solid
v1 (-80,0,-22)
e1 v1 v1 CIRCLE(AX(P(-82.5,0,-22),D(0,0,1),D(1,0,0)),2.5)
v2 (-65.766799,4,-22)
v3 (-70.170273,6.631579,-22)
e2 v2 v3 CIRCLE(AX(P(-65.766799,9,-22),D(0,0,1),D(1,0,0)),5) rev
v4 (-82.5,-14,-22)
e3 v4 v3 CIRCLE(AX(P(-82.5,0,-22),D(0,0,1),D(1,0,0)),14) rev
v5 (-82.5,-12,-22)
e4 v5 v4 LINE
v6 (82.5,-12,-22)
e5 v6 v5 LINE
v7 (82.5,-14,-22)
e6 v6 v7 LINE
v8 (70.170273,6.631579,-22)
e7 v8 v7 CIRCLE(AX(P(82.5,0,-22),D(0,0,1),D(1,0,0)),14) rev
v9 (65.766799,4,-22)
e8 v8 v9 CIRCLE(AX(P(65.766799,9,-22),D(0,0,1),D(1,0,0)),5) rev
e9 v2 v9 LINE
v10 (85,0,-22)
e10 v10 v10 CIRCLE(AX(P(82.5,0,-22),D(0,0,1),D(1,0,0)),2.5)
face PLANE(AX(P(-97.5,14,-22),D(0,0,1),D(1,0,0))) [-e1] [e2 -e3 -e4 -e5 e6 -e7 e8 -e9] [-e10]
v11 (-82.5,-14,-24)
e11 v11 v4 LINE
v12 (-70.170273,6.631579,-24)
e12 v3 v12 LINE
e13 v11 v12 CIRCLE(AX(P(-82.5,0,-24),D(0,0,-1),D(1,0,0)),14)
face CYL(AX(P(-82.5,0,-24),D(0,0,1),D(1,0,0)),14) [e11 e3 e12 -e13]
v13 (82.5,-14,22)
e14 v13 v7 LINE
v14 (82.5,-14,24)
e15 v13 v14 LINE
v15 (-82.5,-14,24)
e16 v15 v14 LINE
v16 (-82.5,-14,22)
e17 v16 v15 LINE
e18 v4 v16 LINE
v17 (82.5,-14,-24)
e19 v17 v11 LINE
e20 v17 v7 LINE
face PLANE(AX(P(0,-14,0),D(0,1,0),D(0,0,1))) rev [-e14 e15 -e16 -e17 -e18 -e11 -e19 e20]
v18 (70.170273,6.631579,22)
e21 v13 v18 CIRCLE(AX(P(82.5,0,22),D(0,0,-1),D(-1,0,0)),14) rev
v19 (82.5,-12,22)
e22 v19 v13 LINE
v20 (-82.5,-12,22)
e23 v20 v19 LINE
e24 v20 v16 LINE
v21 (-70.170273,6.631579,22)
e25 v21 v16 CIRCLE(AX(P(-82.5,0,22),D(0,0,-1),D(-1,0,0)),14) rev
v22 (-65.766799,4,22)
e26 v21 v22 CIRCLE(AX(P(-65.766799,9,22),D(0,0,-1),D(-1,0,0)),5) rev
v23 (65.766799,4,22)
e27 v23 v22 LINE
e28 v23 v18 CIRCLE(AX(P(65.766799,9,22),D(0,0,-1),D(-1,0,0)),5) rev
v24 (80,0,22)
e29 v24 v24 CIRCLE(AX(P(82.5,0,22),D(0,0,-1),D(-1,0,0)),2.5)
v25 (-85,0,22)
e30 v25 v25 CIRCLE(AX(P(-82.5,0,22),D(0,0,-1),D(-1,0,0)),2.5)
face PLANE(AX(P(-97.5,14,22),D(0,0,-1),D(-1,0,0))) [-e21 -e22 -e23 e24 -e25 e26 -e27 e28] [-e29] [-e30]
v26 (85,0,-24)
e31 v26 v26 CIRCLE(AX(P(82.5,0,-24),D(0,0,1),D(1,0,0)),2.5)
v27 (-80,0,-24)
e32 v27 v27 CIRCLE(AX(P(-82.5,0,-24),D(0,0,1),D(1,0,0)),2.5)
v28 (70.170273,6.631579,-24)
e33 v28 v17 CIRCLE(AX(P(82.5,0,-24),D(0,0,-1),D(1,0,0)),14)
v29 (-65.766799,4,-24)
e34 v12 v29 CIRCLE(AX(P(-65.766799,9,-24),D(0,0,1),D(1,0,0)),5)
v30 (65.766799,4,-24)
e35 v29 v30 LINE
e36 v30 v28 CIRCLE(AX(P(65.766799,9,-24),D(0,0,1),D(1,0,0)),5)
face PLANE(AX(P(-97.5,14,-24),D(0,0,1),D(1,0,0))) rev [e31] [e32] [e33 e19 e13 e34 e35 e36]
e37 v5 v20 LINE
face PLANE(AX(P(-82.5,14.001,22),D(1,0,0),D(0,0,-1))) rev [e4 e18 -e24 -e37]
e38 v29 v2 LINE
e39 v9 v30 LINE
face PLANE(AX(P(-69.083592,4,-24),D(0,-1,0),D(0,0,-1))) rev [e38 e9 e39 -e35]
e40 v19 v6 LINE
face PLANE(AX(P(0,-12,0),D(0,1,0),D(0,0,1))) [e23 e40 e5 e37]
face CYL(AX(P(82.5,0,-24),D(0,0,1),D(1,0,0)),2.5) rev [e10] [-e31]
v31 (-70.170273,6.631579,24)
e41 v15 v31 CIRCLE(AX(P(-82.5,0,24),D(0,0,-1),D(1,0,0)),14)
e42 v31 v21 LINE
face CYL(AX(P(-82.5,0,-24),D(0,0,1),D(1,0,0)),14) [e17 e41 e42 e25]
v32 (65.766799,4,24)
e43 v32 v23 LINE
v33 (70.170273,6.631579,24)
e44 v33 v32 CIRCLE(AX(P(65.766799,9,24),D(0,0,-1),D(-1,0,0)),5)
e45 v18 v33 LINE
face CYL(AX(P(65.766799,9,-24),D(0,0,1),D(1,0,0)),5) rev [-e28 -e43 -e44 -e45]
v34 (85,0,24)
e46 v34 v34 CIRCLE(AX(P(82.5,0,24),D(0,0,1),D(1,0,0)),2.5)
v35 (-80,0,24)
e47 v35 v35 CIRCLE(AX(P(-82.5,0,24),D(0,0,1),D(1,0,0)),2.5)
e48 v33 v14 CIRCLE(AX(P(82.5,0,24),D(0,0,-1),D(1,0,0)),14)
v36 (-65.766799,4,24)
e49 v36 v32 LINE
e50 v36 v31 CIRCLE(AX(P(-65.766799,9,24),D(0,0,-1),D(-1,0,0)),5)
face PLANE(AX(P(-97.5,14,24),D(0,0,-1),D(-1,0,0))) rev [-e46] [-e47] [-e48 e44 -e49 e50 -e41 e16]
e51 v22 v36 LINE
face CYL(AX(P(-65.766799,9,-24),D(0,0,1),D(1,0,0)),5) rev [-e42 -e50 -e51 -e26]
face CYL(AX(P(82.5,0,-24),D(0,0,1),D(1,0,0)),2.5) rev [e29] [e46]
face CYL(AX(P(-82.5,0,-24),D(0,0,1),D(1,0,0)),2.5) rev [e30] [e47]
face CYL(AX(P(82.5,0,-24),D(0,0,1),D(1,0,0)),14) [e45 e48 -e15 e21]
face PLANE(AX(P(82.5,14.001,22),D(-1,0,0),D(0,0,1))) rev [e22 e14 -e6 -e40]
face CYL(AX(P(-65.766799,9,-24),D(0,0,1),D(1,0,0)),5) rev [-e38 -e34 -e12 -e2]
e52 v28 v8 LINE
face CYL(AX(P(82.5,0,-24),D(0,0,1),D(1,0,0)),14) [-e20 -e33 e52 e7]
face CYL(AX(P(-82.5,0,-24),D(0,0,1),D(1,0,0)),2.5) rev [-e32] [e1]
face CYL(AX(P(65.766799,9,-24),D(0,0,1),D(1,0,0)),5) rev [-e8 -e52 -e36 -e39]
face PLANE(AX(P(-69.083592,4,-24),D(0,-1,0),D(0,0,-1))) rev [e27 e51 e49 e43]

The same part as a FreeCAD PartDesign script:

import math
import FreeCAD as App
import Part
import Sketcher

V = App.Vector
Q = App.Units.Quantity


def edges_at(feature, points):
    """Names of the edges that pass closest to the given points."""
    edges = feature.Shape.Edges
    near = lambda p: min(range(len(edges)), key=lambda i: edges[i].distToShape(Part.Vertex(*p))[0])
    return sorted({f"Edge{near(p) + 1}" for p in points})


def faces_at(feature, points):
    """Names of the faces that lie closest to the given points."""
    faces = feature.Shape.Faces
    near = lambda p: min(range(len(faces)), key=lambda i: faces[i].distToShape(Part.Vertex(*p))[0])
    return sorted({f"Face{near(p) + 1}" for p in points})

doc = App.newDocument("Part")
body = doc.addObject("PartDesign::Body", "Body")

sketch1 = doc.addObject("Sketcher::SketchObject", "Sketch")
body.addObject(sketch1)
sketch1.AttachmentSupport = (doc.XZ_Plane, [""])
sketch1.MapMode = "FlatFace"
sketch1.addGeometry([
    Part.LineSegment(V(-97.5, -24, 0), V(-97.5, 24, 0)),
    Part.LineSegment(V(-97.5, 24, 0), V(97.5, 24, 0)),
    Part.LineSegment(V(97.5, 24, 0), V(97.5, -24, 0)),
    Part.LineSegment(V(97.5, -24, 0), V(-97.5, -24, 0)),
], False)
sketch1.addConstraint([
    Sketcher.Constraint("Coincident", 0, 2, 1, 1),
    Sketcher.Constraint("Coincident", 1, 2, 2, 1),
    Sketcher.Constraint("Coincident", 2, 2, 3, 1),
    Sketcher.Constraint("Coincident", 3, 2, 0, 1),
    Sketcher.Constraint("Vertical", 0),
    Sketcher.Constraint("Horizontal", 1),
    Sketcher.Constraint("Vertical", 2),
    Sketcher.Constraint("Horizontal", 3),
    Sketcher.Constraint("Symmetric", 0, 2, 2, 2, -1, 1),
    Sketcher.Constraint("DistanceX", 1, 1, 1, 2, Q("195 mm")),
    Sketcher.Constraint("DistanceY", 0, 1, 0, 2, Q("48 mm")),
])
pad1 = doc.addObject("PartDesign::Pad", "Pad")
body.addObject(pad1)
pad1.Profile = sketch1
pad1.Length = 28
pad1.Midplane = True
doc.recompute()

thickness = doc.addObject("PartDesign::Thickness", "Thickness")
body.addObject(thickness)
thickness.Base = (pad1, faces_at(pad1, [(0, 14, 0)]))
thickness.Value = 2
thickness.Reversed = True
thickness.Join = "Intersection"

sketch2 = doc.addObject("Sketcher::SketchObject", "Sketch001")
body.addObject(sketch2)
sketch2.AttachmentSupport = (doc.XY_Plane, [""])
sketch2.MapMode = "FlatFace"
sketch2.AttachmentOffset = App.Placement(V(0, 0, 24), App.Rotation())
sketch2.addGeometry([
    Part.Circle(V(-82.5, 0, 0), V(0, 0, 1), 2.5),
    Part.Circle(V(82.5, 0, 0), V(0, 0, 1), 2.5),
], False)
sketch2.addConstraint([
    Sketcher.Constraint("Equal", 0, 1),
    Sketcher.Constraint("Symmetric", 0, 3, 1, 3, -1, 1),
    Sketcher.Constraint("PointOnObject", 0, 3, -1),
    Sketcher.Constraint("Diameter", 0, Q("5 mm")),
    Sketcher.Constraint("DistanceX", 0, 3, 1, 3, Q("165 mm")),
])
pocket1 = doc.addObject("PartDesign::Pocket", "Pocket")
body.addObject(pocket1)
pocket1.Profile = sketch2
pocket1.Type = "ThroughAll"

sketch3 = doc.addObject("Sketcher::SketchObject", "Sketch002")
body.addObject(sketch3)
sketch3.AttachmentSupport = (doc.YZ_Plane, [""])
sketch3.MapMode = "FlatFace"
sketch3.AttachmentOffset = App.Placement(V(0, 0, -95.5), App.Rotation())
sketch3.addGeometry([
    Part.LineSegment(V(14, 22, 0), V(-12, 22, 0)),
    Part.LineSegment(V(-12, 22, 0), V(-12, -22, 0)),
    Part.LineSegment(V(-12, -22, 0), V(14, -22, 0)),
    Part.LineSegment(V(14, -22, 0), V(14, 22, 0)),
], False)
sketch3.addConstraint([
    Sketcher.Constraint("Coincident", 0, 2, 1, 1),
    Sketcher.Constraint("Coincident", 1, 2, 2, 1),
    Sketcher.Constraint("Coincident", 2, 2, 3, 1),
    Sketcher.Constraint("Coincident", 3, 2, 0, 1),
    Sketcher.Constraint("Horizontal", 0),
    Sketcher.Constraint("Vertical", 1),
    Sketcher.Constraint("Horizontal", 2),
    Sketcher.Constraint("Vertical", 3),
    Sketcher.Constraint("DistanceX", 0, 2, 0, 1, Q("26 mm")),
    Sketcher.Constraint("DistanceY", 1, 2, 1, 1, Q("44 mm")),
    Sketcher.Constraint("DistanceX", 0, 2, -1, 1, Q("12 mm")),
    Sketcher.Constraint("DistanceY", -1, 1, 0, 2, Q("22 mm")),
])
pocket2 = doc.addObject("PartDesign::Pocket", "Pocket001")
body.addObject(pocket2)
pocket2.Profile = sketch3
pocket2.Type = "UpToFirst"

sketch4 = doc.addObject("Sketcher::SketchObject", "Sketch003")
body.addObject(sketch4)
sketch4.AttachmentSupport = (doc.YZ_Plane, [""])
sketch4.MapMode = "FlatFace"
sketch4.AttachmentOffset = App.Placement(V(0, 0, -95.5), App.Rotation())
sketch4.addGeometry([
    Part.LineSegment(V(14, 22, 0), V(-12, 22, 0)),
    Part.LineSegment(V(-12, 22, 0), V(-12, -22, 0)),
    Part.LineSegment(V(-12, -22, 0), V(14, -22, 0)),
    Part.LineSegment(V(14, -22, 0), V(14, 22, 0)),
], False)
sketch4.addConstraint([
    Sketcher.Constraint("Coincident", 0, 2, 1, 1),
    Sketcher.Constraint("Coincident", 1, 2, 2, 1),
    Sketcher.Constraint("Coincident", 2, 2, 3, 1),
    Sketcher.Constraint("Coincident", 3, 2, 0, 1),
    Sketcher.Constraint("Horizontal", 0),
    Sketcher.Constraint("Vertical", 1),
    Sketcher.Constraint("Horizontal", 2),
    Sketcher.Constraint("Vertical", 3),
    Sketcher.Constraint("DistanceX", 0, 2, 0, 1, Q("26 mm")),
    Sketcher.Constraint("DistanceY", 1, 2, 1, 1, Q("44 mm")),
    Sketcher.Constraint("DistanceX", 0, 2, -1, 1, Q("12 mm")),
    Sketcher.Constraint("DistanceY", -1, 1, 0, 2, Q("22 mm")),
])
pocket3 = doc.addObject("PartDesign::Pocket", "Pocket002")
body.addObject(pocket3)
pocket3.Profile = sketch4
pocket3.Length = 193
pocket3.Reversed = True

sketch5 = doc.addObject("Sketcher::SketchObject", "Sketch004")
body.addObject(sketch5)
sketch5.AttachmentSupport = (doc.XY_Plane, [""])
sketch5.MapMode = "FlatFace"
sketch5.addGeometry([
    Part.LineSegment(V(-69.083592, 4, 0), V(69.083592, 4, 0)),
    Part.ArcOfCircle(Part.Circle(V(82.5, 0, 0), V(0, 0, 1), 14), math.radians(-90), math.radians(163.39845)),
    Part.LineSegment(V(82.5, -14, 0), V(97.5, -14, 0)),
    Part.LineSegment(V(97.5, -14, 0), V(97.5, 24, 0)),
    Part.LineSegment(V(97.5, 24, 0), V(-97.5, 24, 0)),
    Part.LineSegment(V(-97.5, 24, 0), V(-97.5, -14, 0)),
    Part.LineSegment(V(-97.5, -14, 0), V(-82.5, -14, 0)),
    Part.ArcOfCircle(Part.Circle(V(-82.5, 0, 0), V(0, 0, 1), 14), math.radians(16.60155), math.radians(270)),
], False)
sketch5.addConstraint([
    Sketcher.Constraint("Coincident", 0, 2, 1, 2),
    Sketcher.Constraint("Tangent", 1, 1, 2, 1),
    Sketcher.Constraint("Coincident", 2, 2, 3, 1),
    Sketcher.Constraint("Coincident", 3, 2, 4, 1),
    Sketcher.Constraint("Coincident", 4, 2, 5, 1),
    Sketcher.Constraint("Coincident", 5, 2, 6, 1),
    Sketcher.Constraint("Tangent", 6, 2, 7, 2),
    Sketcher.Constraint("Coincident", 7, 1, 0, 1),
    Sketcher.Constraint("Horizontal", 0),
    Sketcher.Constraint("Horizontal", 2),
    Sketcher.Constraint("Vertical", 3),
    Sketcher.Constraint("Horizontal", 4),
    Sketcher.Constraint("Vertical", 5),
    Sketcher.Constraint("Horizontal", 6),
    Sketcher.Constraint("Equal", 1, 7),
    Sketcher.Constraint("Symmetric", 1, 3, 7, 3, -1, 1),
    Sketcher.Constraint("Symmetric", 2, 2, 5, 2, -2),
    Sketcher.Constraint("Radius", 1, Q("14 mm")),
    Sketcher.Constraint("DistanceX", 2, 1, 2, 2, Q("15 mm")),
    Sketcher.Constraint("DistanceX", 4, 2, 4, 1, Q("195 mm")),
    Sketcher.Constraint("DistanceY", 3, 1, 3, 2, Q("38 mm")),
    Sketcher.Constraint("DistanceY", -1, 1, 0, 2, Q("4 mm")),
])
pocket4 = doc.addObject("PartDesign::Pocket", "Pocket003")
body.addObject(pocket4)
pocket4.Profile = sketch5
pocket4.Type = "ThroughAll"
pocket4.Midplane = True

sketch6 = doc.addObject("Sketcher::SketchObject", "Sketch005")
body.addObject(sketch6)
sketch6.AttachmentSupport = (doc.XZ_Plane, [""])
sketch6.MapMode = "FlatFace"
sketch6.AttachmentOffset = App.Placement(V(0, 0, 14), App.Rotation())
sketch6.addGeometry([
    Part.LineSegment(V(82.5, 22, 0), V(82.5, -22, 0)),
    Part.LineSegment(V(82.5, -22, 0), V(89.711103, -22, 0)),
    Part.LineSegment(V(89.711103, -22, 0), V(89.711103, 22, 0)),
    Part.LineSegment(V(89.711103, 22, 0), V(82.5, 22, 0)),
], False)
sketch6.addConstraint([
    Sketcher.Constraint("Coincident", 0, 2, 1, 1),
    Sketcher.Constraint("Coincident", 1, 2, 2, 1),
    Sketcher.Constraint("Coincident", 2, 2, 3, 1),
    Sketcher.Constraint("Coincident", 3, 2, 0, 1),
    Sketcher.Constraint("Vertical", 0),
    Sketcher.Constraint("Horizontal", 1),
    Sketcher.Constraint("Vertical", 2),
    Sketcher.Constraint("Horizontal", 3),
    Sketcher.Constraint("DistanceY", 0, 2, 0, 1, Q("44 mm")),
    Sketcher.Constraint("DistanceY", 0, 2, -1, 1, Q("22 mm")),
    Sketcher.Constraint("DistanceX", -1, 1, 0, 2, Q("82.5 mm")),
    Sketcher.Constraint("DistanceX", 1, 1, 1, 2, Q("7.211103 mm")),
])
pocket5 = doc.addObject("PartDesign::Pocket", "Pocket004")
body.addObject(pocket5)
pocket5.Profile = sketch6
pocket5.Length = 2

sketch7 = doc.addObject("Sketcher::SketchObject", "Sketch006")
body.addObject(sketch7)
sketch7.AttachmentSupport = (doc.XZ_Plane, [""])
sketch7.MapMode = "FlatFace"
sketch7.AttachmentOffset = App.Placement(V(0, 0, 14), App.Rotation())
sketch7.addGeometry([
    Part.LineSegment(V(-89.711103, 22, 0), V(-89.711103, -22, 0)),
    Part.LineSegment(V(-89.711103, -22, 0), V(-82.5, -22, 0)),
    Part.LineSegment(V(-82.5, -22, 0), V(-82.5, 22, 0)),
    Part.LineSegment(V(-82.5, 22, 0), V(-89.711103, 22, 0)),
], False)
sketch7.addConstraint([
    Sketcher.Constraint("Coincident", 0, 2, 1, 1),
    Sketcher.Constraint("Coincident", 1, 2, 2, 1),
    Sketcher.Constraint("Coincident", 2, 2, 3, 1),
    Sketcher.Constraint("Coincident", 3, 2, 0, 1),
    Sketcher.Constraint("Vertical", 0),
    Sketcher.Constraint("Horizontal", 1),
    Sketcher.Constraint("Vertical", 2),
    Sketcher.Constraint("Horizontal", 3),
    Sketcher.Constraint("DistanceY", 0, 2, 0, 1, Q("44 mm")),
    Sketcher.Constraint("DistanceY", 0, 2, -1, 1, Q("22 mm")),
    Sketcher.Constraint("DistanceX", 1, 2, -1, 1, Q("82.5 mm")),
    Sketcher.Constraint("DistanceX", 1, 1, 1, 2, Q("7.211103 mm")),
])
pocket6 = doc.addObject("PartDesign::Pocket", "Pocket005")
body.addObject(pocket6)
pocket6.Profile = sketch7
pocket6.Length = 2
doc.recompute()

fillet = doc.addObject("PartDesign::Fillet", "Fillet")
body.addObject(fillet)
fillet.Base = (pocket6, edges_at(pocket6, [
    (69.084, 4, -23),
    (-69.084, 4, 23),
    (-69.084, 4, -23),
    (69.084, 4, 23),
]))
fillet.Radius = 5

doc.recompute()
